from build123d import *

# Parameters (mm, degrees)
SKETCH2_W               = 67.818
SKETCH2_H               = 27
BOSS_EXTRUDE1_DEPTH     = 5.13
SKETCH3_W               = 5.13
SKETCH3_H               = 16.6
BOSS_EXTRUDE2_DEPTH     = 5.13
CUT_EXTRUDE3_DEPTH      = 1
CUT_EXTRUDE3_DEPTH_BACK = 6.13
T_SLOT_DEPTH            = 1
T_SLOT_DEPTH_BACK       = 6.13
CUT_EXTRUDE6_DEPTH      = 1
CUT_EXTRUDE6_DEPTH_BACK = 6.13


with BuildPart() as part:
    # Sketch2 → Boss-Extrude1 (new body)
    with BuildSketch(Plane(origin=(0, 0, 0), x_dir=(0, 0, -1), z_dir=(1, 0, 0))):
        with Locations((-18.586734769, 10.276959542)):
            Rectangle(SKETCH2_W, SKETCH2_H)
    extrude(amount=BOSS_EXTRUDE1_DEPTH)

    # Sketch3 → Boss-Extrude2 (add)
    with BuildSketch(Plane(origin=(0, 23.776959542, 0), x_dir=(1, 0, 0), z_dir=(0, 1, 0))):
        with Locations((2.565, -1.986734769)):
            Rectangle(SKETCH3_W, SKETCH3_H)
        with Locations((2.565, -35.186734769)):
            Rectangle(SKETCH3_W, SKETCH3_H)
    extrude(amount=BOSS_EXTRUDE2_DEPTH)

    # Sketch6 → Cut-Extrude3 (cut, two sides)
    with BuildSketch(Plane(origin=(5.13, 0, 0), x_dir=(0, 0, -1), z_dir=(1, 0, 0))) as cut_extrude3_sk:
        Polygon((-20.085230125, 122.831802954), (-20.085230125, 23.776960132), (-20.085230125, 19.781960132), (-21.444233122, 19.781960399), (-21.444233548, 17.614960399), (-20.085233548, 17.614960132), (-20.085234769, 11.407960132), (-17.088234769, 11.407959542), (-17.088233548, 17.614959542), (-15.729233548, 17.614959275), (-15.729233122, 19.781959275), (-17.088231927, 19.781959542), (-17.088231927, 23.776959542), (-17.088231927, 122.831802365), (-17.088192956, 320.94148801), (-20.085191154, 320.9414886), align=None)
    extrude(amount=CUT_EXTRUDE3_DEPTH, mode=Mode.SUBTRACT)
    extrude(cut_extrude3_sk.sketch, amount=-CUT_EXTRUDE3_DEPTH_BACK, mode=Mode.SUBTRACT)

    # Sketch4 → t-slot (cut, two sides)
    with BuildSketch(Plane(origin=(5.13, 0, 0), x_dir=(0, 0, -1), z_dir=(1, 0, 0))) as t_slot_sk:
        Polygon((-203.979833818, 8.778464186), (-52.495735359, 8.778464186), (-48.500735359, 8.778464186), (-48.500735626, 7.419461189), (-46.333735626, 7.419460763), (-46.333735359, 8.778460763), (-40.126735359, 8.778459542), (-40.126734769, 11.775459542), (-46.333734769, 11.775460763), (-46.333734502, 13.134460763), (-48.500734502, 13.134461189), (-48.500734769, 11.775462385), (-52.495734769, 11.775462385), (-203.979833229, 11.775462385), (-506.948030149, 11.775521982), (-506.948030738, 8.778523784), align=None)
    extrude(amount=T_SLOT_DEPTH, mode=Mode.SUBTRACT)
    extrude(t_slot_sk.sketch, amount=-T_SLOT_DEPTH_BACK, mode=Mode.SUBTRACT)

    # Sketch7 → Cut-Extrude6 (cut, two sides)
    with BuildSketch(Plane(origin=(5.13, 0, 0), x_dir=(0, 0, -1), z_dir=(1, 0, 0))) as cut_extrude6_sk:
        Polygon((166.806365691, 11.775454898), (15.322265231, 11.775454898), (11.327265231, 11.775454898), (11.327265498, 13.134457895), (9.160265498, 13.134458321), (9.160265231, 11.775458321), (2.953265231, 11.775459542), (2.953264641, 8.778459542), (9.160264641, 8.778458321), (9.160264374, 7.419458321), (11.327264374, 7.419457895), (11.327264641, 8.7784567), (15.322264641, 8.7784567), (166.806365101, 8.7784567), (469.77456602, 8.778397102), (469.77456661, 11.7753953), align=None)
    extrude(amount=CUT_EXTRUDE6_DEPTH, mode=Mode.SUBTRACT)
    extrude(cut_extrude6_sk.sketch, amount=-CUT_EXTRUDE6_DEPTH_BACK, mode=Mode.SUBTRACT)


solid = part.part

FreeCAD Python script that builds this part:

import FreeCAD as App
import Part
import Sketcher
Q = App.Units.Quantity

doc = App.newDocument("Part")
body = doc.addObject("PartDesign::Body", "Body")

sketch1 = body.newObject("Sketcher::SketchObject", "Sketch")
sketch1.AttachmentSupport = (doc.getObject("YZ_Plane"), [""])
sketch1.MapMode = "FlatFace"
sketch1.addGeometry(Part.LineSegment(App.Vector(24, 52, 0), App.Vector(-3, 52, 0)), False)
sketch1.addGeometry(Part.LineSegment(App.Vector(-3, 52, 0), App.Vector(-3, -15, 0)), False)
sketch1.addGeometry(Part.LineSegment(App.Vector(-3, -15, 0), App.Vector(24, -15, 0)), False)
sketch1.addGeometry(Part.LineSegment(App.Vector(24, -15, 0), App.Vector(24, 52, 0)), False)
sketch1.addConstraint(Sketcher.Constraint("Coincident", 0, 2, 1, 1))
sketch1.addConstraint(Sketcher.Constraint("Coincident", 1, 2, 2, 1))
sketch1.addConstraint(Sketcher.Constraint("Coincident", 2, 2, 3, 1))
sketch1.addConstraint(Sketcher.Constraint("Coincident", 3, 2, 0, 1))
sketch1.addConstraint(Sketcher.Constraint("Horizontal", 0))
sketch1.addConstraint(Sketcher.Constraint("Vertical", 1))
sketch1.addConstraint(Sketcher.Constraint("Horizontal", 2))
sketch1.addConstraint(Sketcher.Constraint("Vertical", 3))
sketch1.addConstraint(Sketcher.Constraint("DistanceX", 0, 2, 0, 1, Q("27 mm")))
sketch1.addConstraint(Sketcher.Constraint("DistanceY", 1, 2, 1, 1, Q("67.818 mm")))
sketch1.addConstraint(Sketcher.Constraint("DistanceX", 0, 2, -1, 1, Q("3.22304 mm")))
sketch1.addConstraint(Sketcher.Constraint("DistanceY", -1, 1, 0, 2, Q("52.495735 mm")))
pad1 = body.newObject("PartDesign::Pad", "Pad")
pad1.Profile = sketch1
pad1.Length = 5.13

sketch2 = body.newObject("Sketcher::SketchObject", "Sketch001")
sketch2.AttachmentSupport = (doc.getObject("XZ_Plane"), [""])
sketch2.MapMode = "FlatFace"
sketch2.AttachmentOffset = App.Placement(App.Vector(0, 0, -23.77696), App.Rotation())
sketch2.addGeometry(Part.LineSegment(App.Vector(0, -6, 0), App.Vector(0, 10, 0)), False)
sketch2.addGeometry(Part.LineSegment(App.Vector(0, 10, 0), App.Vector(5, 10, 0)), False)
sketch2.addGeometry(Part.LineSegment(App.Vector(5, 10, 0), App.Vector(5, -6, 0)), False)
sketch2.addGeometry(Part.LineSegment(App.Vector(5, -6, 0), App.Vector(0, -6, 0)), False)
sketch2.addGeometry(Part.LineSegment(App.Vector(0, 27, 0), App.Vector(0, 43, 0)), False)
sketch2.addGeometry(Part.LineSegment(App.Vector(0, 43, 0), App.Vector(5, 43, 0)), False)
sketch2.addGeometry(Part.LineSegment(App.Vector(5, 43, 0), App.Vector(5, 27, 0)), False)
sketch2.addGeometry(Part.LineSegment(App.Vector(5, 27, 0), App.Vector(0, 27, 0)), False)
sketch2.addConstraint(Sketcher.Constraint("Coincident", 0, 2, 1, 1))
sketch2.addConstraint(Sketcher.Constraint("Coincident", 1, 2, 2, 1))
sketch2.addConstraint(Sketcher.Constraint("Coincident", 2, 2, 3, 1))
sketch2.addConstraint(Sketcher.Constraint("Coincident", 3, 2, 0, 1))
sketch2.addConstraint(Sketcher.Constraint("Coincident", 4, 2, 5, 1))
sketch2.addConstraint(Sketcher.Constraint("Coincident", 5, 2, 6, 1))
sketch2.addConstraint(Sketcher.Constraint("Coincident", 6, 2, 7, 1))
sketch2.addConstraint(Sketcher.Constraint("Coincident", 7, 2, 4, 1))
sketch2.addConstraint(Sketcher.Constraint("Vertical", 0))
sketch2.addConstraint(Sketcher.Constraint("Horizontal", 1))
sketch2.addConstraint(Sketcher.Constraint("Vertical", 2))
sketch2.addConstraint(Sketcher.Constraint("Horizontal", 3))
sketch2.addConstraint(Sketcher.Constraint("Vertical", 4))
sketch2.addConstraint(Sketcher.Constraint("Horizontal", 5))
sketch2.addConstraint(Sketcher.Constraint("Vertical", 6))
sketch2.addConstraint(Sketcher.Constraint("Horizontal", 7))
sketch2.addConstraint(Sketcher.Constraint("PointOnObject", 0, 2, -2))
sketch2.addConstraint(Sketcher.Constraint("PointOnObject", 4, 2, -2))
sketch2.addConstraint(Sketcher.Constraint("Vertical", 2, 2, 5, 2))
sketch2.addConstraint(Sketcher.Constraint("Equal", 2, 4))
sketch2.addConstraint(Sketcher.Constraint("DistanceY", 0, 1, 0, 2, Q("16.6 mm")))
sketch2.addConstraint(Sketcher.Constraint("DistanceX", 1, 1, 1, 2, Q("5.13 mm")))
sketch2.addConstraint(Sketcher.Constraint("DistanceY", 0, 2, 4, 2, Q("33.2 mm")))
sketch2.addConstraint(Sketcher.Constraint("DistanceY", -1, 1, 0, 2, Q("10.286735 mm")))
pad2 = body.newObject("PartDesign::Pad", "Pad001")
pad2.Profile = sketch2
pad2.Length = 5.13
pad2.Reversed = True

sketch3 = body.newObject("Sketcher::SketchObject", "Sketch002")
sketch3.AttachmentSupport = (doc.getObject("YZ_Plane"), [""])
sketch3.MapMode = "FlatFace"
sketch3.AttachmentOffset = App.Placement(App.Vector(0, 0, 5.13), App.Rotation())
sketch3.addGeometry(Part.LineSegment(App.Vector(122.8, 20.1, 0), App.Vector(19.8, 20.1, 0)), False)
sketch3.addGeometry(Part.LineSegment(App.Vector(19.8, 20.1, 0), App.Vector(19.8, 21.4, 0)), False)
sketch3.addGeometry(Part.LineSegment(App.Vector(19.8, 21.4, 0), App.Vector(17.6, 21.4, 0)), False)
sketch3.addGeometry(Part.LineSegment(App.Vector(17.6, 21.4, 0), App.Vector(17.6, 20.1, 0)), False)
sketch3.addGeometry(Part.LineSegment(App.Vector(17.6, 20.1, 0), App.Vector(11.4, 20.1, 0)), False)
sketch3.addGeometry(Part.LineSegment(App.Vector(11.4, 20.1, 0), App.Vector(11.4, 17.1, 0)), False)
sketch3.addGeometry(Part.LineSegment(App.Vector(11.4, 17.1, 0), App.Vector(17.6, 17.1, 0)), False)
sketch3.addGeometry(Part.LineSegment(App.Vector(17.6, 17.1, 0), App.Vector(17.6, 15.7, 0)), False)
sketch3.addGeometry(Part.LineSegment(App.Vector(17.6, 15.7, 0), App.Vector(19.8, 15.7, 0)), False)
sketch3.addGeometry(Part.LineSegment(App.Vector(19.8, 15.7, 0), App.Vector(19.8, 17.1, 0)), False)
sketch3.addGeometry(Part.LineSegment(App.Vector(19.8, 17.1, 0), App.Vector(122.8, 17.1, 0)), False)
sketch3.addGeometry(Part.LineSegment(App.Vector(122.8, 17.1, 0), App.Vector(320.9, 17.1, 0)), False)
sketch3.addGeometry(Part.LineSegment(App.Vector(320.9, 17.1, 0), App.Vector(320.9, 20.1, 0)), False)
sketch3.addGeometry(Part.LineSegment(App.Vector(320.9, 20.1, 0), App.Vector(122.8, 20.1, 0)), False)
sketch3.addConstraint(Sketcher.Constraint("Coincident", 0, 2, 1, 1))
sketch3.addConstraint(Sketcher.Constraint("Coincident", 1, 2, 2, 1))
sketch3.addConstraint(Sketcher.Constraint("Coincident", 2, 2, 3, 1))
sketch3.addConstraint(Sketcher.Constraint("Coincident", 3, 2, 4, 1))
sketch3.addConstraint(Sketcher.Constraint("Coincident", 4, 2, 5, 1))
sketch3.addConstraint(Sketcher.Constraint("Coincident", 5, 2, 6, 1))
sketch3.addConstraint(Sketcher.Constraint("Coincident", 6, 2, 7, 1))
sketch3.addConstraint(Sketcher.Constraint("Coincident", 7, 2, 8, 1))
sketch3.addConstraint(Sketcher.Constraint("Coincident", 8, 2, 9, 1))
sketch3.addConstraint(Sketcher.Constraint("Coincident", 9, 2, 10, 1))
sketch3.addConstraint(Sketcher.Constraint("Coincident", 10, 2, 11, 1))
sketch3.addConstraint(Sketcher.Constraint("Coincident", 11, 2, 12, 1))
sketch3.addConstraint(Sketcher.Constraint("Coincident", 12, 2, 13, 1))
sketch3.addConstraint(Sketcher.Constraint("Coincident", 13, 2, 0, 1))
sketch3.addConstraint(Sketcher.Constraint("Horizontal", 0))
sketch3.addConstraint(Sketcher.Constraint("Vertical", 1))
sketch3.addConstraint(Sketcher.Constraint("Horizontal", 2))
sketch3.addConstraint(Sketcher.Constraint("Vertical", 3))
sketch3.addConstraint(Sketcher.Constraint("Horizontal", 4))
sketch3.addConstraint(Sketcher.Constraint("Vertical", 5))
sketch3.addConstraint(Sketcher.Constraint("Horizontal", 6))
sketch3.addConstraint(Sketcher.Constraint("Vertical", 7))
sketch3.addConstraint(Sketcher.Constraint("Horizontal", 8))
sketch3.addConstraint(Sketcher.Constraint("Vertical", 9))
sketch3.addConstraint(Sketcher.Constraint("Horizontal", 10))
sketch3.addConstraint(Sketcher.Constraint("Vertical", 12))
sketch3.addConstraint(Sketcher.Constraint("Parallel", 11, 13))
sketch3.addConstraint(Sketcher.Constraint("Horizontal", 6, 2, 9, 2))
sketch3.addConstraint(Sketcher.Constraint("Vertical", 3, 2, 6, 2))
sketch3.addConstraint(Sketcher.Constraint("Vertical", 1, 2, 8, 2))
sketch3.addConstraint(Sketcher.Constraint("Vertical", 10, 2, 13, 2))
sketch3.addConstraint(Sketcher.Constraint("Equal", 3, 7))
sketch3.addConstraint(Sketcher.Constraint("Equal", 5, 12))
sketch3.addConstraint(Sketcher.Constraint("Angle", 11, Q("-0.000011 deg")))
sketch3.addConstraint(Sketcher.Constraint("DistanceX", 2, 2, 2, 1, Q("2.167 mm")))
sketch3.addConstraint(Sketcher.Constraint("DistanceX", 4, 2, 4, 1, Q("6.207 mm")))
sketch3.addConstraint(Sketcher.Constraint("DistanceY", 3, 2, 3, 1, Q("1.359 mm")))
sketch3.addConstraint(Sketcher.Constraint("DistanceY", 5, 2, 5, 1, Q("2.997 mm")))
sketch3.addConstraint(Sketcher.Constraint("DistanceX", 0, 2, 0, 1, Q("103.049843 mm")))
sketch3.addConstraint(Sketcher.Constraint("DistanceX", -1, 1, 0, 2, Q("19.78196 mm")))
sketch3.addConstraint(Sketcher.Constraint("DistanceY", -1, 1, 0, 2, Q("20.08523 mm")))
sketch3.addConstraint(Sketcher.Constraint("DistanceX", -1, 1, 11, 2, Q("320.941488 mm")))
pocket1 = body.newObject("PartDesign::Pocket", "Pocket")
pocket1.Profile = sketch3
pocket1.Type = "ThroughAll"
pocket1.Midplane = True

sketch4 = body.newObject("Sketcher::SketchObject", "Sketch003")
sketch4.AttachmentSupport = (doc.getObject("YZ_Plane"), [""])
sketch4.MapMode = "FlatFace"
sketch4.AttachmentOffset = App.Placement(App.Vector(0, 0, 5.13), App.Rotation())
sketch4.addGeometry(Part.LineSegment(App.Vector(8.8, 204, 0), App.Vector(8.8, 48.5, 0)), False)
sketch4.addGeometry(Part.LineSegment(App.Vector(8.8, 48.5, 0), App.Vector(7.4, 48.5, 0)), False)
sketch4.addGeometry(Part.LineSegment(App.Vector(7.4, 48.5, 0), App.Vector(7.4, 46.3, 0)), False)
sketch4.addGeometry(Part.LineSegment(App.Vector(7.4, 46.3, 0), App.Vector(8.8, 46.3, 0)), False)
sketch4.addGeometry(Part.LineSegment(App.Vector(8.8, 46.3, 0), App.Vector(8.8, 40.1, 0)), False)
sketch4.addGeometry(Part.LineSegment(App.Vector(8.8, 40.1, 0), App.Vector(11.8, 40.1, 0)), False)
sketch4.addGeometry(Part.LineSegment(App.Vector(11.8, 40.1, 0), App.Vector(11.8, 46.3, 0)), False)
sketch4.addGeometry(Part.LineSegment(App.Vector(11.8, 46.3, 0), App.Vector(13.1, 46.3, 0)), False)
sketch4.addGeometry(Part.LineSegment(App.Vector(13.1, 46.3, 0), App.Vector(13.1, 48.5, 0)), False)
sketch4.addGeometry(Part.LineSegment(App.Vector(13.1, 48.5, 0), App.Vector(11.8, 48.5, 0)), False)
sketch4.addGeometry(Part.LineSegment(App.Vector(11.8, 48.5, 0), App.Vector(11.8, 204, 0)), False)
sketch4.addGeometry(Part.LineSegment(App.Vector(11.8, 204, 0), App.Vector(11.8, 506.9, 0)), False)
sketch4.addGeometry(Part.LineSegment(App.Vector(11.8, 506.9, 0), App.Vector(8.8, 506.9, 0)), False)
sketch4.addGeometry(Part.LineSegment(App.Vector(8.8, 506.9, 0), App.Vector(8.8, 204, 0)), False)
sketch4.addConstraint(Sketcher.Constraint("Coincident", 0, 2, 1, 1))
sketch4.addConstraint(Sketcher.Constraint("Coincident", 1, 2, 2, 1))
sketch4.addConstraint(Sketcher.Constraint("Coincident", 2, 2, 3, 1))
sketch4.addConstraint(Sketcher.Constraint("Coincident", 3, 2, 4, 1))
sketch4.addConstraint(Sketcher.Constraint("Coincident", 4, 2, 5, 1))
sketch4.addConstraint(Sketcher.Constraint("Coincident", 5, 2, 6, 1))
sketch4.addConstraint(Sketcher.Constraint("Coincident", 6, 2, 7, 1))
sketch4.addConstraint(Sketcher.Constraint("Coincident", 7, 2, 8, 1))
sketch4.addConstraint(Sketcher.Constraint("Coincident", 8, 2, 9, 1))
sketch4.addConstraint(Sketcher.Constraint("Coincident", 9, 2, 10, 1))
sketch4.addConstraint(Sketcher.Constraint("Coincident", 10, 2, 11, 1))
sketch4.addConstraint(Sketcher.Constraint("Coincident", 11, 2, 12, 1))
sketch4.addConstraint(Sketcher.Constraint("Coincident", 12, 2, 13, 1))
sketch4.addConstraint(Sketcher.Constraint("Coincident", 13, 2, 0, 1))
sketch4.addConstraint(Sketcher.Constraint("Vertical", 0))
sketch4.addConstraint(Sketcher.Constraint("Horizontal", 1))
sketch4.addConstraint(Sketcher.Constraint("Vertical", 2))
sketch4.addConstraint(Sketcher.Constraint("Horizontal", 3))
sketch4.addConstraint(Sketcher.Constraint("Vertical", 4))
sketch4.addConstraint(Sketcher.Constraint("Horizontal", 5))
sketch4.addConstraint(Sketcher.Constraint("Vertical", 6))
sketch4.addConstraint(Sketcher.Constraint("Horizontal", 7))
sketch4.addConstraint(Sketcher.Constraint("Vertical", 8))
sketch4.addConstraint(Sketcher.Constraint("Horizontal", 9))
sketch4.addConstraint(Sketcher.Constraint("Vertical", 10))
sketch4.addConstraint(Sketcher.Constraint("Horizontal", 12))
sketch4.addConstraint(Sketcher.Constraint("Parallel", 11, 13))
sketch4.addConstraint(Sketcher.Constraint("Horizontal", 3, 2, 6, 2))
sketch4.addConstraint(Sketcher.Constraint("Horizontal", 1, 2, 8, 2))
sketch4.addConstraint(Sketcher.Constraint("Horizontal", 10, 2, 13, 2))
sketch4.addConstraint(Sketcher.Constraint("Vertical", 6, 2, 9, 2))
sketch4.addConstraint(Sketcher.Constraint("Equal", 3, 7))
sketch4.addConstraint(Sketcher.Constraint("Equal", 5, 12))
sketch4.addConstraint(Sketcher.Constraint("Angle", 11, Q("89.999989 deg")))
sketch4.addConstraint(Sketcher.Constraint("DistanceX", 3, 1, 3, 2, Q("1.359 mm")))
sketch4.addConstraint(Sketcher.Constraint("DistanceX", 5, 1, 5, 2, Q("2.997 mm")))
sketch4.addConstraint(Sketcher.Constraint("DistanceY", 2, 2, 2, 1, Q("2.167 mm")))
sketch4.addConstraint(Sketcher.Constraint("DistanceY", 4, 2, 4, 1, Q("6.207 mm")))
sketch4.addConstraint(Sketcher.Constraint("DistanceY", 0, 2, 0, 1, Q("155.479098 mm")))
sketch4.addConstraint(Sketcher.Constraint("DistanceX", -1, 1, 1, 2, Q("7.419461 mm")))
sketch4.addConstraint(Sketcher.Constraint("DistanceY", -1, 1, 11, 2, Q("506.94803 mm")))
sketch4.addConstraint(Sketcher.Constraint("Distance", 11, Q("302.968197 mm")))
pocket2 = body.newObject("PartDesign::Pocket", "Pocket001")
pocket2.Profile = sketch4
pocket2.Type = "ThroughAll"
pocket2.Midplane = True

sketch5 = body.newObject("Sketcher::SketchObject", "Sketch004")
sketch5.AttachmentSupport = (doc.getObject("YZ_Plane"), [""])
sketch5.MapMode = "FlatFace"
sketch5.AttachmentOffset = App.Placement(App.Vector(0, 0, 5.13), App.Rotation())
sketch5.addGeometry(Part.LineSegment(App.Vector(11.8, -166.8, 0), App.Vector(11.8, -11.3, 0)), False)
sketch5.addGeometry(Part.LineSegment(App.Vector(11.8, -11.3, 0), App.Vector(13.1, -11.3, 0)), False)
sketch5.addGeometry(Part.LineSegment(App.Vector(13.1, -11.3, 0), App.Vector(13.1, -9.2, 0)), False)
sketch5.addGeometry(Part.LineSegment(App.Vector(13.1, -9.2, 0), App.Vector(11.8, -9.2, 0)), False)
sketch5.addGeometry(Part.LineSegment(App.Vector(11.8, -9.2, 0), App.Vector(11.8, -3, 0)), False)
sketch5.addGeometry(Part.LineSegment(App.Vector(11.8, -3, 0), App.Vector(8.8, -3, 0)), False)
sketch5.addGeometry(Part.LineSegment(App.Vector(8.8, -3, 0), App.Vector(8.8, -9.2, 0)), False)
sketch5.addGeometry(Part.LineSegment(App.Vector(8.8, -9.2, 0), App.Vector(7.4, -9.2, 0)), False)
sketch5.addGeometry(Part.LineSegment(App.Vector(7.4, -9.2, 0), App.Vector(7.4, -11.3, 0)), False)
sketch5.addGeometry(Part.LineSegment(App.Vector(7.4, -11.3, 0), App.Vector(8.8, -11.3, 0)), False)
sketch5.addGeometry(Part.LineSegment(App.Vector(8.8, -11.3, 0), App.Vector(8.8, -166.8, 0)), False)
sketch5.addGeometry(Part.LineSegment(App.Vector(8.8, -166.8, 0), App.Vector(8.8, -469.8, 0)), False)
sketch5.addGeometry(Part.LineSegment(App.Vector(8.8, -469.8, 0), App.Vector(11.8, -469.8, 0)), False)
sketch5.addGeometry(Part.LineSegment(App.Vector(11.8, -469.8, 0), App.Vector(11.8, -166.8, 0)), False)
sketch5.addConstraint(Sketcher.Constraint("Coincident", 0, 2, 1, 1))
sketch5.addConstraint(Sketcher.Constraint("Coincident", 1, 2, 2, 1))
sketch5.addConstraint(Sketcher.Constraint("Coincident", 2, 2, 3, 1))
sketch5.addConstraint(Sketcher.Constraint("Coincident", 3, 2, 4, 1))
sketch5.addConstraint(Sketcher.Constraint("Coincident", 4, 2, 5, 1))
sketch5.addConstraint(Sketcher.Constraint("Coincident", 5, 2, 6, 1))
sketch5.addConstraint(Sketcher.Constraint("Coincident", 6, 2, 7, 1))
sketch5.addConstraint(Sketcher.Constraint("Coincident", 7, 2, 8, 1))
sketch5.addConstraint(Sketcher.Constraint("Coincident", 8, 2, 9, 1))
sketch5.addConstraint(Sketcher.Constraint("Coincident", 9, 2, 10, 1))
sketch5.addConstraint(Sketcher.Constraint("Coincident", 10, 2, 11, 1))
sketch5.addConstraint(Sketcher.Constraint("Coincident", 11, 2, 12, 1))
sketch5.addConstraint(Sketcher.Constraint("Coincident", 12, 2, 13, 1))
sketch5.addConstraint(Sketcher.Constraint("Coincident", 13, 2, 0, 1))
sketch5.addConstraint(Sketcher.Constraint("Vertical", 0))
sketch5.addConstraint(Sketcher.Constraint("Horizontal", 1))
sketch5.addConstraint(Sketcher.Constraint("Vertical", 2))
sketch5.addConstraint(Sketcher.Constraint("Horizontal", 3))
sketch5.addConstraint(Sketcher.Constraint("Vertical", 4))
sketch5.addConstraint(Sketcher.Constraint("Horizontal", 5))
sketch5.addConstraint(Sketcher.Constraint("Vertical", 6))
sketch5.addConstraint(Sketcher.Constraint("Horizontal", 7))
sketch5.addConstraint(Sketcher.Constraint("Vertical", 8))
sketch5.addConstraint(Sketcher.Constraint("Horizontal", 9))
sketch5.addConstraint(Sketcher.Constraint("Vertical", 10))
sketch5.addConstraint(Sketcher.Constraint("Horizontal", 12))
sketch5.addConstraint(Sketcher.Constraint("Parallel", 11, 13))
sketch5.addConstraint(Sketcher.Constraint("Horizontal", 3, 2, 6, 2))
sketch5.addConstraint(Sketcher.Constraint("Horizontal", 1, 2, 8, 2))
sketch5.addConstraint(Sketcher.Constraint("Horizontal", 10, 2, 13, 2))
sketch5.addConstraint(Sketcher.Constraint("Vertical", 6, 2, 9, 2))
sketch5.addConstraint(Sketcher.Constraint("Equal", 3, 7))
sketch5.addConstraint(Sketcher.Constraint("Equal", 5, 12))
sketch5.addConstraint(Sketcher.Constraint("Angle", 11, Q("-90.000011 deg")))
sketch5.addConstraint(Sketcher.Constraint("DistanceX", 3, 2, 3, 1, Q("1.359 mm")))
sketch5.addConstraint(Sketcher.Constraint("DistanceX", 5, 2, 5, 1, Q("2.997 mm")))
sketch5.addConstraint(Sketcher.Constraint("DistanceY", 2, 1, 2, 2, Q("2.167 mm")))
sketch5.addConstraint(Sketcher.Constraint("DistanceY", 4, 1, 4, 2, Q("6.207 mm")))
sketch5.addConstraint(Sketcher.Constraint("DistanceY", 0, 1, 0, 2, Q("155.4791 mm")))
sketch5.addConstraint(Sketcher.Constraint("Distance", 11, Q("302.968201 mm")))
sketch5.addConstraint(Sketcher.Constraint("DistanceX", -1, 1, 2, 2, Q("13.134458 mm")))
sketch5.addConstraint(Sketcher.Constraint("DistanceY", 0, 2, -1, 1, Q("11.327265 mm")))
pocket3 = body.newObject("PartDesign::Pocket", "Pocket002")
pocket3.Profile = sketch5
pocket3.Type = "ThroughAll"
pocket3.Midplane = True

doc.recompute()
